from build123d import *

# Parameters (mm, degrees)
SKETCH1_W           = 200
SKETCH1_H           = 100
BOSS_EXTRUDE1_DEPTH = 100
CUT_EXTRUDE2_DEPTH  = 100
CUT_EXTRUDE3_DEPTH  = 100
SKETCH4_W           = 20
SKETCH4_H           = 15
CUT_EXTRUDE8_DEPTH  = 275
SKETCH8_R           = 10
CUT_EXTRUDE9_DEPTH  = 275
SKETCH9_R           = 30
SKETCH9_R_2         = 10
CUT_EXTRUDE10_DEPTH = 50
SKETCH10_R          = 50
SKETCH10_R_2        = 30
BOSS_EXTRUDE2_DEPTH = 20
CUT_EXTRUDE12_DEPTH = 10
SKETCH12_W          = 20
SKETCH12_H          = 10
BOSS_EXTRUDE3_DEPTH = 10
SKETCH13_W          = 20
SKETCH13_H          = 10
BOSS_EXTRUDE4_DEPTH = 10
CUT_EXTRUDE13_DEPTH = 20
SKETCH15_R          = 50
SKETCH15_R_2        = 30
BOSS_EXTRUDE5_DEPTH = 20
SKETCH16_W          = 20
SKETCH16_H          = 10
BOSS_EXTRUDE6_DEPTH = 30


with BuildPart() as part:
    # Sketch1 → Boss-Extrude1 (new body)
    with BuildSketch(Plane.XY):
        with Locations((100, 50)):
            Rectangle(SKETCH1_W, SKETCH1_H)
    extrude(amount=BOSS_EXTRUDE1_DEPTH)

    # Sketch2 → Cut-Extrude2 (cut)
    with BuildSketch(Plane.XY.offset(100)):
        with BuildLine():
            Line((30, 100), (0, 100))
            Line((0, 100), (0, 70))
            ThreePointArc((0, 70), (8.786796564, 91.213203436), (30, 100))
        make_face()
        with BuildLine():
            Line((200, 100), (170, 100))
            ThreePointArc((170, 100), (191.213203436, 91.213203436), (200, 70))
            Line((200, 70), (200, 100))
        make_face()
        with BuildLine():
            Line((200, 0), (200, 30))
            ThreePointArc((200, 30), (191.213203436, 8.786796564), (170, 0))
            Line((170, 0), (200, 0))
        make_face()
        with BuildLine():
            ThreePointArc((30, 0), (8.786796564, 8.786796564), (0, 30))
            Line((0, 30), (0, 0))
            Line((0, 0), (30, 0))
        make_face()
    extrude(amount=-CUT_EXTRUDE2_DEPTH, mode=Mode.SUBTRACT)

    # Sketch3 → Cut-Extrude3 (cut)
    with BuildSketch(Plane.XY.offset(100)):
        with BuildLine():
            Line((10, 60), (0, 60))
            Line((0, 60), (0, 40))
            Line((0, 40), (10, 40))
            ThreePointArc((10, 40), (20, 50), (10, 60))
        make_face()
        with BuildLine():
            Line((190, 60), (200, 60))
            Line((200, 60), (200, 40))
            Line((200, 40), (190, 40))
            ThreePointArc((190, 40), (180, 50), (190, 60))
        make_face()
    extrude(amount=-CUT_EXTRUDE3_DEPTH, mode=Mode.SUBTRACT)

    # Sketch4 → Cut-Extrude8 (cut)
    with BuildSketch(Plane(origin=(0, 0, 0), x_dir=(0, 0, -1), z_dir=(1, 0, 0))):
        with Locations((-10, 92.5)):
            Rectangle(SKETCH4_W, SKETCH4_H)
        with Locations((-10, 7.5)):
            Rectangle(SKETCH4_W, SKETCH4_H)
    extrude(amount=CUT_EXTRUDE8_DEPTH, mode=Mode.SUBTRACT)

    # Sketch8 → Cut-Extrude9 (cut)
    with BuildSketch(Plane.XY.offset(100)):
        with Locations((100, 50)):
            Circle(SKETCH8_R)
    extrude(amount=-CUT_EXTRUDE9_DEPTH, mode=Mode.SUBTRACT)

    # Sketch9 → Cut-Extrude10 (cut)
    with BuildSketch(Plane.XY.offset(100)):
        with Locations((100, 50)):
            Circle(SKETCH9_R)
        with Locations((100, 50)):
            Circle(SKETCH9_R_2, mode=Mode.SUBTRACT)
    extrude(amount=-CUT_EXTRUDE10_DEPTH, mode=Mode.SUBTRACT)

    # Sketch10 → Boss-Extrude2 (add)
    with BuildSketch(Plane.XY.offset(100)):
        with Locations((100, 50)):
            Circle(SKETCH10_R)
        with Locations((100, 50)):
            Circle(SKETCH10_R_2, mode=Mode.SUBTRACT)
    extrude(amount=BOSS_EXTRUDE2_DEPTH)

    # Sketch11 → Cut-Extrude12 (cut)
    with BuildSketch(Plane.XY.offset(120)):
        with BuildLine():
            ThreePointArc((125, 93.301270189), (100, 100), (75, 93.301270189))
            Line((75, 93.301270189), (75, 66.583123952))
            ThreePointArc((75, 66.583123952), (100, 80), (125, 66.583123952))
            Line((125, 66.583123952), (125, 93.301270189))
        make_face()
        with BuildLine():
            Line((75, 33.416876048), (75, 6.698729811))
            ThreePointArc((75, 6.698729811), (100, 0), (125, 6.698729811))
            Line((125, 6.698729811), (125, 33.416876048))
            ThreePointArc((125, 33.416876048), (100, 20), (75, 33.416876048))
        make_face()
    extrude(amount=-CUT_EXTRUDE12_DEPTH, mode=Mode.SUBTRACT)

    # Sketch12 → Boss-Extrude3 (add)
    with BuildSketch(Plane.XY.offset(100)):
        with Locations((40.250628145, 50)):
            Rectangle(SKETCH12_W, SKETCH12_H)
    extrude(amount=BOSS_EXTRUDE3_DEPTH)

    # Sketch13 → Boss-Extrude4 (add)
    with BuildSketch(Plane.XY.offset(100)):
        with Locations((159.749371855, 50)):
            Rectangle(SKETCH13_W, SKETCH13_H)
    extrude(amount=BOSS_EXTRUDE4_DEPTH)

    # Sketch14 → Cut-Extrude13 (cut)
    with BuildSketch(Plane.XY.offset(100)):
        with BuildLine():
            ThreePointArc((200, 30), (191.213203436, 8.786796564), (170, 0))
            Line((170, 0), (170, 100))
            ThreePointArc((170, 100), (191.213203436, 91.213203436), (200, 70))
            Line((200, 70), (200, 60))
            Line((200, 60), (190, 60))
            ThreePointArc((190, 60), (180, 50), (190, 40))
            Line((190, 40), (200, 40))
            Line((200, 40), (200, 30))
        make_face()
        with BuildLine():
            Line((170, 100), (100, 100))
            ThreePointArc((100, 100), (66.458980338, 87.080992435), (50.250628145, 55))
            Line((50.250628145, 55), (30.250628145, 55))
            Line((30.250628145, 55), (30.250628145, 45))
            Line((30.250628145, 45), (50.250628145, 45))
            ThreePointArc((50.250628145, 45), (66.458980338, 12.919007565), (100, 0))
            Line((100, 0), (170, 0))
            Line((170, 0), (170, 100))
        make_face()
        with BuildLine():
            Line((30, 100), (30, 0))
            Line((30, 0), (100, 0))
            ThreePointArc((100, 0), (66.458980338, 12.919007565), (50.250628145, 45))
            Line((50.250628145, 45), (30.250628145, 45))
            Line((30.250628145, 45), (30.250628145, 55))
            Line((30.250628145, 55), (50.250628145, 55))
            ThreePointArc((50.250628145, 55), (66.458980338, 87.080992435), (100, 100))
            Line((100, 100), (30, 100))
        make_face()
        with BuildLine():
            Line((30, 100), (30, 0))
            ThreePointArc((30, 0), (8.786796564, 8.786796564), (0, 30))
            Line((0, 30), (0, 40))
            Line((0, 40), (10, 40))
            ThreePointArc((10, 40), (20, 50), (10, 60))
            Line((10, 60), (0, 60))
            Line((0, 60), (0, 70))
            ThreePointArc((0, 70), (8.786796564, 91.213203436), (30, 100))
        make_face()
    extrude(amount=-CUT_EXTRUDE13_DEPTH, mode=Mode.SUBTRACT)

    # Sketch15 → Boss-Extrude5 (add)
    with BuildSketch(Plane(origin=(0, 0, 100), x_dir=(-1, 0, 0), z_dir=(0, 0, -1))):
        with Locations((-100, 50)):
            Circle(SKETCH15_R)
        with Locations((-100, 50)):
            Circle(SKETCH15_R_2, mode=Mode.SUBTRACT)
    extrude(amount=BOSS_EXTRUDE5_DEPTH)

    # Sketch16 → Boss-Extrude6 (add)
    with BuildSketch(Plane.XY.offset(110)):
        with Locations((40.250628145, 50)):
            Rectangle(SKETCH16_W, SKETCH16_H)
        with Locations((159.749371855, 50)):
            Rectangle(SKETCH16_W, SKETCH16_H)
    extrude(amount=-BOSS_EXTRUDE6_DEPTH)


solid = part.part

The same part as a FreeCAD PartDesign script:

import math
import FreeCAD as App
import Part
import Sketcher

V = App.Vector


def add_polygon(sketch, points):
    """Adds a closed chain of lines whose ends are joined by coincident constraints."""
    first, n = sketch.GeometryCount, len(points)
    for a, b in zip(points, points[1:] + points[:1]):
        sketch.addGeometry(Part.LineSegment(App.Vector(*a, 0), App.Vector(*b, 0)), False)
    for i in range(n):
        sketch.addConstraint(Sketcher.Constraint("Coincident", first + i, 2, first + (i + 1) % n, 1))

doc = App.newDocument("Part")
body = doc.addObject("PartDesign::Body", "Body")
body.AllowCompound = True

# Sketch on XY plane
sketch1 = body.newObject("Sketcher::SketchObject", "Sketch")
sketch1.AttachmentSupport = (doc.getObject("XY_Plane"), [""])
sketch1.MapMode = "FlatFace"
add_polygon(sketch1, [(0, 100), (0, 0), (200, 0), (200, 100)])  # lines 0-3
sketch1.addConstraint([
    Sketcher.Constraint("Vertical", 0),
    Sketcher.Constraint("Horizontal", 1),
    Sketcher.Constraint("Vertical", 2),
    Sketcher.Constraint("Horizontal", 3),
    Sketcher.Constraint("Coincident", 0, 2, -1, 1),
    Sketcher.Constraint("DistanceX", 1, 1, 1, 2, 200.0),
    Sketcher.Constraint("DistanceY", 0, 2, 0, 1, 100.0),
])
pad1 = body.newObject("PartDesign::Pad", "Pad")
pad1.Profile = sketch1
pad1.Length = 100

# Sketch on XY plane
sketch2 = body.newObject("Sketcher::SketchObject", "Sketch001")
sketch2.AttachmentSupport = (doc.getObject("XY_Plane"), [""])
sketch2.MapMode = "FlatFace"
sketch2.AttachmentOffset = App.Placement(V(0, 0, 100), App.Rotation())
sketch2.addGeometry([
    Part.LineSegment(V(30, 100, 0), V(0, 100, 0)),  # 0
    Part.LineSegment(V(0, 100, 0), V(0, 70, 0)),  # 1
    Part.ArcOfCircle(Part.Circle(V(30, 70, 0), V(0, 0, 1), 30), math.radians(90), math.radians(180)),  # 2
    Part.LineSegment(V(200, 100, 0), V(170, 100, 0)),  # 3
    Part.ArcOfCircle(Part.Circle(V(170, 70, 0), V(0, 0, 1), 30), math.radians(0), math.radians(90)),  # 4
    Part.LineSegment(V(200, 70, 0), V(200, 100, 0)),  # 5
    Part.LineSegment(V(200, 0, 0), V(200, 30, 0)),  # 6
    Part.ArcOfCircle(Part.Circle(V(170, 30, 0), V(0, 0, 1), 30), math.radians(-90), math.radians(0)),  # 7
    Part.LineSegment(V(170, 0, 0), V(200, 0, 0)),  # 8
    Part.ArcOfCircle(Part.Circle(V(30, 30, 0), V(0, 0, 1), 30), math.radians(180), math.radians(270)),  # 9
    Part.LineSegment(V(0, 30, 0), V(0, 0, 0)),  # 10
    Part.LineSegment(V(0, 0, 0), V(30, 0, 0)),  # 11
], False)
sketch2.addConstraint([
    Sketcher.Constraint("Coincident", 0, 2, 1, 1),
    Sketcher.Constraint("Tangent", 1, 2, 2, 2),
    Sketcher.Constraint("Tangent", 2, 1, 0, 1),
    Sketcher.Constraint("Tangent", 3, 2, 4, 2),
    Sketcher.Constraint("Tangent", 4, 1, 5, 1),
    Sketcher.Constraint("Coincident", 5, 2, 3, 1),
    Sketcher.Constraint("Tangent", 6, 2, 7, 2),
    Sketcher.Constraint("Tangent", 7, 1, 8, 1),
    Sketcher.Constraint("Coincident", 8, 2, 6, 1),
    Sketcher.Constraint("Tangent", 9, 1, 10, 1),
    Sketcher.Constraint("Coincident", 10, 2, 11, 1),
    Sketcher.Constraint("Tangent", 11, 2, 9, 2),
    Sketcher.Constraint("Horizontal", 0),
    Sketcher.Constraint("Vertical", 1),
    Sketcher.Constraint("Horizontal", 3),
    Sketcher.Constraint("Vertical", 5),
    Sketcher.Constraint("Vertical", 6),
    Sketcher.Constraint("Horizontal", 8),
    Sketcher.Constraint("Vertical", 10),
    Sketcher.Constraint("Horizontal", 11),
    Sketcher.Constraint("Coincident", 10, 2, -1, 1),
    Sketcher.Constraint("Equal", 2, 4),
    Sketcher.Constraint("Equal", 4, 7),
    Sketcher.Constraint("Equal", 7, 9),
    Sketcher.Constraint("PointOnObject", 0, 2, -2),
    Sketcher.Constraint("PointOnObject", 7, 1, -1),
    Sketcher.Constraint("Horizontal", 2, 3, 4, 3),
    Sketcher.Constraint("Vertical", 4, 3, 7, 3),
    Sketcher.Constraint("Radius", 2, 30.0),
    Sketcher.Constraint("DistanceY", -1, 1, 2, 3, 70.0),
    Sketcher.Constraint("DistanceX", -1, 1, 4, 3, 170.0),
])
pocket1 = body.newObject("PartDesign::Pocket", "Pocket")
pocket1.Profile = sketch2
pocket1.Length = 100

# Sketch on XY plane
sketch3 = body.newObject("Sketcher::SketchObject", "Sketch002")
sketch3.AttachmentSupport = (doc.getObject("XY_Plane"), [""])
sketch3.MapMode = "FlatFace"
sketch3.AttachmentOffset = App.Placement(V(0, 0, 100), App.Rotation())
sketch3.addGeometry([
    Part.LineSegment(V(10, 60, 0), V(0, 60, 0)),  # 0
    Part.LineSegment(V(0, 60, 0), V(0, 40, 0)),  # 1
    Part.LineSegment(V(0, 40, 0), V(10, 40, 0)),  # 2
    Part.ArcOfCircle(Part.Circle(V(10, 50, 0), V(0, 0, 1), 10), math.radians(-90), math.radians(90)),  # 3
    Part.LineSegment(V(200, 60, 0), V(190, 60, 0)),  # 4
    Part.ArcOfCircle(Part.Circle(V(190, 50, 0), V(0, 0, 1), 10), math.radians(90), math.radians(270)),  # 5
    Part.LineSegment(V(190, 40, 0), V(200, 40, 0)),  # 6
    Part.LineSegment(V(200, 40, 0), V(200, 60, 0)),  # 7
], False)
sketch3.addConstraint([
    Sketcher.Constraint("Coincident", 0, 2, 1, 1),
    Sketcher.Constraint("Coincident", 1, 2, 2, 1),
    Sketcher.Constraint("Tangent", 2, 2, 3, 1),
    Sketcher.Constraint("Tangent", 3, 2, 0, 1),
    Sketcher.Constraint("Tangent", 4, 2, 5, 1),
    Sketcher.Constraint("Tangent", 5, 2, 6, 1),
    Sketcher.Constraint("Coincident", 6, 2, 7, 1),
    Sketcher.Constraint("Coincident", 7, 2, 4, 1),
    Sketcher.Constraint("Horizontal", 0),
    Sketcher.Constraint("Vertical", 1),
    Sketcher.Constraint("Horizontal", 2),
    Sketcher.Constraint("Horizontal", 4),
    Sketcher.Constraint("Horizontal", 6),
    Sketcher.Constraint("Vertical", 7),
    Sketcher.Constraint("Equal", 3, 5),
    Sketcher.Constraint("PointOnObject", 0, 2, -2),
    Sketcher.Constraint("Horizontal", 3, 3, 5, 3),
    Sketcher.Constraint("Equal", 2, 4),
    Sketcher.Constraint("Radius", 3, 10.0),
    Sketcher.Constraint("DistanceX", 0, 2, 0, 1, 10.0),
    Sketcher.Constraint("DistanceY", -1, 1, 3, 3, 50.0),
    Sketcher.Constraint("DistanceX", -1, 1, 5, 3, 190.0),
])
pocket2 = body.newObject("PartDesign::Pocket", "Pocket001")
pocket2.Profile = sketch3
pocket2.Length = 100

# Sketch on YZ plane
sketch4 = body.newObject("Sketcher::SketchObject", "Sketch003")
sketch4.AttachmentSupport = (doc.getObject("YZ_Plane"), [""])
sketch4.MapMode = "FlatFace"
add_polygon(sketch4, [(100, 20), (85, 20), (85, 0), (100, 0)])  # lines 0-3
add_polygon(sketch4, [(15, 20), (0, 20), (0, 0), (15, 0)])  # lines 4-7
sketch4.addConstraint([
    Sketcher.Constraint("Horizontal", 0),
    Sketcher.Constraint("Vertical", 1),
    Sketcher.Constraint("Horizontal", 2),
    Sketcher.Constraint("Vertical", 3),
    Sketcher.Constraint("Horizontal", 4),
    Sketcher.Constraint("Vertical", 5),
    Sketcher.Constraint("Horizontal", 6),
    Sketcher.Constraint("Vertical", 7),
    Sketcher.Constraint("Coincident", 5, 2, -1, 1),
    Sketcher.Constraint("PointOnObject", 1, 2, -1),
    Sketcher.Constraint("Horizontal", 3, 2, 4, 2),
    Sketcher.Constraint("Equal", 2, 4),
    Sketcher.Constraint("DistanceX", 0, 2, 0, 1, 15.0),
    Sketcher.Constraint("DistanceY", 1, 2, 1, 1, 20.0),
    Sketcher.Constraint("DistanceX", -1, 1, 0, 2, 85.0),
])
pocket3 = body.newObject("PartDesign::Pocket", "Pocket002")
pocket3.Profile = sketch4
pocket3.Length = 275
pocket3.Reversed = True

# Sketch on XY plane
sketch5 = body.newObject("Sketcher::SketchObject", "Sketch004")
sketch5.AttachmentSupport = (doc.getObject("XY_Plane"), [""])
sketch5.MapMode = "FlatFace"
sketch5.AttachmentOffset = App.Placement(V(0, 0, 100), App.Rotation())
sketch5.addGeometry(Part.Circle(V(100, 50, 0), V(0, 0, 1), 10), False)
sketch5.addConstraint([
    Sketcher.Constraint("Diameter", 0, 20.0),
    Sketcher.Constraint("DistanceX", -1, 1, 0, 3, 100.0),
    Sketcher.Constraint("DistanceY", -1, 1, 0, 3, 50.0),
])
pocket4 = body.newObject("PartDesign::Pocket", "Pocket003")
pocket4.Profile = sketch5
pocket4.Length = 275

# Sketch on XY plane
sketch6 = body.newObject("Sketcher::SketchObject", "Sketch005")
sketch6.AttachmentSupport = (doc.getObject("XY_Plane"), [""])
sketch6.MapMode = "FlatFace"
sketch6.AttachmentOffset = App.Placement(V(0, 0, 100), App.Rotation())
sketch6.addGeometry([
    Part.Circle(V(100, 50, 0), V(0, 0, 1), 30),
    Part.Circle(V(100, 50, 0), V(0, 0, 1), 10),
], False)
sketch6.addConstraint([
    Sketcher.Constraint("Coincident", 1, 3, 0, 3),
    Sketcher.Constraint("Diameter", 0, 60.0),
    Sketcher.Constraint("Diameter", 1, 20.0),
    Sketcher.Constraint("DistanceX", -1, 1, 0, 3, 100.0),
    Sketcher.Constraint("DistanceY", -1, 1, 0, 3, 50.0),
])
pocket5 = body.newObject("PartDesign::Pocket", "Pocket004")
pocket5.Profile = sketch6
pocket5.Length = 50

# Sketch on XY plane
sketch7 = body.newObject("Sketcher::SketchObject", "Sketch006")
sketch7.AttachmentSupport = (doc.getObject("XY_Plane"), [""])
sketch7.MapMode = "FlatFace"
sketch7.AttachmentOffset = App.Placement(V(0, 0, 100), App.Rotation())
sketch7.addGeometry([
    Part.Circle(V(100, 50, 0), V(0, 0, 1), 50),
    Part.Circle(V(100, 50, 0), V(0, 0, 1), 30),
], False)
sketch7.addConstraint([
    Sketcher.Constraint("Coincident", 1, 3, 0, 3),
    Sketcher.Constraint("Diameter", 0, 100.0),
    Sketcher.Constraint("Diameter", 1, 60.0),
    Sketcher.Constraint("DistanceX", -1, 1, 0, 3, 100.0),
    Sketcher.Constraint("DistanceY", -1, 1, 0, 3, 50.0),
])
pad2 = body.newObject("PartDesign::Pad", "Pad001")
pad2.Profile = sketch7
pad2.Length = 20

# Sketch on XY plane
sketch8 = body.newObject("Sketcher::SketchObject", "Sketch007")
sketch8.AttachmentSupport = (doc.getObject("XY_Plane"), [""])
sketch8.MapMode = "FlatFace"
sketch8.AttachmentOffset = App.Placement(V(0, 0, 120), App.Rotation())
sketch8.addGeometry([
    Part.ArcOfCircle(Part.Circle(V(100, 50, 0), V(0, 0, 1), 50), math.radians(60), math.radians(120)),  # 0
    Part.LineSegment(V(75, 93, 0), V(75, 67, 0)),  # 1
    Part.ArcOfCircle(Part.Circle(V(100, 50, 0), V(0, 0, 1), 30), math.radians(34), math.radians(146)),  # 2
    Part.LineSegment(V(125, 67, 0), V(125, 93, 0)),  # 3
    Part.LineSegment(V(75, 33, 0), V(75, 7, 0)),  # 4
    Part.ArcOfCircle(Part.Circle(V(100, 50, 0), V(0, 0, 1), 50), math.radians(-120), math.radians(-60)),  # 5
    Part.LineSegment(V(125, 7, 0), V(125, 33, 0)),  # 6
    Part.ArcOfCircle(Part.Circle(V(100, 50, 0), V(0, 0, 1), 30), math.radians(-146), math.radians(-34)),  # 7
], False)
sketch8.addConstraint([
    Sketcher.Constraint("Coincident", 0, 2, 1, 1),
    Sketcher.Constraint("Coincident", 1, 2, 2, 2),
    Sketcher.Constraint("Coincident", 2, 1, 3, 1),
    Sketcher.Constraint("Coincident", 3, 2, 0, 1),
    Sketcher.Constraint("Coincident", 4, 2, 5, 1),
    Sketcher.Constraint("Coincident", 5, 2, 6, 1),
    Sketcher.Constraint("Coincident", 6, 2, 7, 2),
    Sketcher.Constraint("Coincident", 7, 1, 4, 1),
    Sketcher.Constraint("Vertical", 1),
    Sketcher.Constraint("Vertical", 3),
    Sketcher.Constraint("Vertical", 4),
    Sketcher.Constraint("Vertical", 6),
    Sketcher.Constraint("Coincident", 2, 3, 0, 3),
    Sketcher.Constraint("Coincident", 5, 3, 0, 3),
    Sketcher.Constraint("Coincident", 7, 3, 0, 3),
    Sketcher.Constraint("Equal", 0, 5),
    Sketcher.Constraint("Equal", 2, 7),
    Sketcher.Constraint("Horizontal", 1, 2, 2, 1),
    Sketcher.Constraint("Horizontal", 4, 2, 5, 2),
    Sketcher.Constraint("Vertical", 1, 2, 4, 2),
    Sketcher.Constraint("Radius", 0, 50.0),
    Sketcher.Constraint("Radius", 2, 30.0),
    Sketcher.Constraint("DistanceX", -1, 1, 0, 3, 100.0),
    Sketcher.Constraint("DistanceY", -1, 1, 0, 3, 50.0),
    Sketcher.Constraint("DistanceX", -1, 1, 0, 2, 75.0),
])
pocket6 = body.newObject("PartDesign::Pocket", "Pocket005")
pocket6.Profile = sketch8
pocket6.Length = 10

# Sketch on XY plane
sketch9 = body.newObject("Sketcher::SketchObject", "Sketch008")
sketch9.AttachmentSupport = (doc.getObject("XY_Plane"), [""])
sketch9.MapMode = "FlatFace"
sketch9.AttachmentOffset = App.Placement(V(0, 0, 100), App.Rotation())
add_polygon(sketch9, [(30, 55), (30, 45), (50, 45), (50, 55)])  # lines 0-3
sketch9.addConstraint([
    Sketcher.Constraint("Vertical", 0),
    Sketcher.Constraint("Horizontal", 1),
    Sketcher.Constraint("Vertical", 2),
    Sketcher.Constraint("Horizontal", 3),
    Sketcher.Constraint("DistanceX", 1, 1, 1, 2, 20.0),
    Sketcher.Constraint("DistanceY", 0, 2, 0, 1, 10.0),
    Sketcher.Constraint("DistanceY", -1, 1, 0, 2, 45.0),
    Sketcher.Constraint("DistanceX", -1, 1, 0, 2, 30.250628),
])
pad3 = body.newObject("PartDesign::Pad", "Pad002")
pad3.Profile = sketch9
pad3.Length = 10

# Sketch on XY plane
sketch10 = body.newObject("Sketcher::SketchObject", "Sketch009")
sketch10.AttachmentSupport = (doc.getObject("XY_Plane"), [""])
sketch10.MapMode = "FlatFace"
sketch10.AttachmentOffset = App.Placement(V(0, 0, 100), App.Rotation())
add_polygon(sketch10, [(150, 55), (150, 45), (170, 45), (170, 55)])  # lines 0-3
sketch10.addConstraint([
    Sketcher.Constraint("Vertical", 0),
    Sketcher.Constraint("Horizontal", 1),
    Sketcher.Constraint("Vertical", 2),
    Sketcher.Constraint("Horizontal", 3),
    Sketcher.Constraint("DistanceX", 1, 1, 1, 2, 20.0),
    Sketcher.Constraint("DistanceY", 0, 2, 0, 1, 10.0),
    Sketcher.Constraint("DistanceY", -1, 1, 0, 2, 45.0),
    Sketcher.Constraint("DistanceX", -1, 1, 0, 2, 149.749372),
])
pad4 = body.newObject("PartDesign::Pad", "Pad003")
pad4.Profile = sketch10
pad4.Length = 10

# Sketch on XY plane
sketch11 = body.newObject("Sketcher::SketchObject", "Sketch010")
sketch11.AttachmentSupport = (doc.getObject("XY_Plane"), [""])
sketch11.MapMode = "FlatFace"
sketch11.AttachmentOffset = App.Placement(V(0, 0, 100), App.Rotation())
sketch11.addGeometry([
    Part.ArcOfCircle(Part.Circle(V(170, 30, 0), V(0, 0, 1), 30), math.radians(-90), math.radians(0)),  # 0
    Part.LineSegment(V(200, 30, 0), V(200, 40, 0)),  # 1
    Part.LineSegment(V(200, 40, 0), V(190, 40, 0)),  # 2
    Part.ArcOfCircle(Part.Circle(V(190, 50, 0), V(0, 0, 1), 10), math.radians(90), math.radians(270)),  # 3
    Part.LineSegment(V(190, 60, 0), V(200, 60, 0)),  # 4
    Part.LineSegment(V(200, 60, 0), V(200, 70, 0)),  # 5
    Part.ArcOfCircle(Part.Circle(V(170, 70, 0), V(0, 0, 1), 30), math.radians(0), math.radians(90)),  # 6
    Part.LineSegment(V(170, 100, 0), V(30, 100, 0)),  # 7
    Part.ArcOfCircle(Part.Circle(V(30, 70, 0), V(0, 0, 1), 30), math.radians(90), math.radians(180)),  # 8
    Part.LineSegment(V(0, 70, 0), V(0, 60, 0)),  # 9
    Part.LineSegment(V(0, 60, 0), V(10, 60, 0)),  # 10
    Part.ArcOfCircle(Part.Circle(V(10, 50, 0), V(0, 0, 1), 10), math.radians(-90), math.radians(90)),  # 11
    Part.LineSegment(V(10, 40, 0), V(0, 40, 0)),  # 12
    Part.LineSegment(V(0, 40, 0), V(0, 30, 0)),  # 13
    Part.ArcOfCircle(Part.Circle(V(30, 30, 0), V(0, 0, 1), 30), math.radians(180), math.radians(270)),  # 14
    Part.LineSegment(V(30, 0, 0), V(170, 0, 0)),  # 15
], False)
sketch11.addConstraint([
    Sketcher.Constraint("Tangent", 0, 2, 1, 1),
    Sketcher.Constraint("Coincident", 1, 2, 2, 1),
    Sketcher.Constraint("Tangent", 2, 2, 3, 2),
    Sketcher.Constraint("Tangent", 3, 1, 4, 1),
    Sketcher.Constraint("Coincident", 4, 2, 5, 1),
    Sketcher.Constraint("Tangent", 5, 2, 6, 1),
    Sketcher.Constraint("Tangent", 6, 2, 7, 1),
    Sketcher.Constraint("Tangent", 7, 2, 8, 1),
    Sketcher.Constraint("Tangent", 8, 2, 9, 1),
    Sketcher.Constraint("Coincident", 9, 2, 10, 1),
    Sketcher.Constraint("Tangent", 10, 2, 11, 2),
    Sketcher.Constraint("Tangent", 11, 1, 12, 1),
    Sketcher.Constraint("Coincident", 12, 2, 13, 1),
    Sketcher.Constraint("Tangent", 13, 2, 14, 1),
    Sketcher.Constraint("Tangent", 14, 2, 15, 1),
    Sketcher.Constraint("Tangent", 15, 2, 0, 1),
    Sketcher.Constraint("Vertical", 1),
    Sketcher.Constraint("Horizontal", 2),
    Sketcher.Constraint("Horizontal", 4),
    Sketcher.Constraint("Vertical", 5),
    Sketcher.Constraint("Horizontal", 7),
    Sketcher.Constraint("Vertical", 9),
    Sketcher.Constraint("Horizontal", 10),
    Sketcher.Constraint("Horizontal", 12),
    Sketcher.Constraint("Vertical", 13),
    Sketcher.Constraint("Horizontal", 15),
    Sketcher.Constraint("Equal", 0, 6),
    Sketcher.Constraint("Equal", 6, 8),
    Sketcher.Constraint("Equal", 3, 11),
    Sketcher.Constraint("Equal", 8, 14),
    Sketcher.Constraint("PointOnObject", 8, 2, -2),
    Sketcher.Constraint("PointOnObject", 12, 2, -2),
    Sketcher.Constraint("PointOnObject", 14, 2, -1),
    Sketcher.Constraint("Horizontal", 3, 3, 11, 3),
    Sketcher.Constraint("Vertical", 0, 3, 6, 3),
    Sketcher.Constraint("Equal", 4, 10),
    Sketcher.Constraint("Equal", 12, 1),
    Sketcher.Constraint("Equal", 1, 5),
    Sketcher.Constraint("Radius", 0, 30.0),
    Sketcher.Constraint("Radius", 3, 10.0),
    Sketcher.Constraint("DistanceX", 2, 2, 2, 1, 10.0),
    Sketcher.Constraint("DistanceX", 7, 2, 7, 1, 140.0),
])
pocket7 = body.newObject("PartDesign::Pocket", "Pocket006")
pocket7.Profile = sketch11
pocket7.Length = 20

# Sketch on XY plane
sketch12 = body.newObject("Sketcher::SketchObject", "Sketch011")
sketch12.AttachmentSupport = (doc.getObject("XY_Plane"), [""])
sketch12.MapMode = "FlatFace"
sketch12.AttachmentOffset = App.Placement(V(0, 0, 100), App.Rotation())
sketch12.addGeometry([
    Part.Circle(V(100, 50, 0), V(0, 0, 1), 50),
    Part.Circle(V(100, 50, 0), V(0, 0, 1), 30),
], False)
sketch12.addConstraint([
    Sketcher.Constraint("Coincident", 1, 3, 0, 3),
    Sketcher.Constraint("Diameter", 0, 100.0),
    Sketcher.Constraint("Diameter", 1, 60.0),
    Sketcher.Constraint("DistanceX", -1, 1, 0, 3, 100.0),
    Sketcher.Constraint("DistanceY", -1, 1, 0, 3, 50.0),
])
pad5 = body.newObject("PartDesign::Pad", "Pad004")
pad5.Profile = sketch12
pad5.Length = 20
pad5.Reversed = True

# Sketch on XY plane
sketch13 = body.newObject("Sketcher::SketchObject", "Sketch012")
sketch13.AttachmentSupport = (doc.getObject("XY_Plane"), [""])
sketch13.MapMode = "FlatFace"
sketch13.AttachmentOffset = App.Placement(V(0, 0, 110), App.Rotation())
add_polygon(sketch13, [(30, 55), (30, 45), (50, 45), (50, 55)])  # lines 0-3
add_polygon(sketch13, [(150, 55), (150, 45), (170, 45), (170, 55)])  # lines 4-7
sketch13.addConstraint([
    Sketcher.Constraint("Vertical", 0),
    Sketcher.Constraint("Horizontal", 1),
    Sketcher.Constraint("Vertical", 2),
    Sketcher.Constraint("Horizontal", 3),
    Sketcher.Constraint("Vertical", 4),
    Sketcher.Constraint("Horizontal", 5),
    Sketcher.Constraint("Vertical", 6),
    Sketcher.Constraint("Horizontal", 7),
    Sketcher.Constraint("Horizontal", 1, 2, 4, 2),
    Sketcher.Constraint("Horizontal", 3, 2, 6, 2),
    Sketcher.Constraint("Equal", 3, 5),
    Sketcher.Constraint("DistanceX", 1, 1, 1, 2, 20.0),
    Sketcher.Constraint("DistanceY", 0, 2, 0, 1, 10.0),
    Sketcher.Constraint("DistanceY", -1, 1, 0, 2, 45.0),
    Sketcher.Constraint("DistanceX", -1, 1, 0, 2, 30.250628),
    Sketcher.Constraint("DistanceX", -1, 1, 4, 2, 149.749372),
])
pad6 = body.newObject("PartDesign::Pad", "Pad005")
pad6.Profile = sketch13
pad6.Length = 30
pad6.Reversed = True

doc.recompute()
